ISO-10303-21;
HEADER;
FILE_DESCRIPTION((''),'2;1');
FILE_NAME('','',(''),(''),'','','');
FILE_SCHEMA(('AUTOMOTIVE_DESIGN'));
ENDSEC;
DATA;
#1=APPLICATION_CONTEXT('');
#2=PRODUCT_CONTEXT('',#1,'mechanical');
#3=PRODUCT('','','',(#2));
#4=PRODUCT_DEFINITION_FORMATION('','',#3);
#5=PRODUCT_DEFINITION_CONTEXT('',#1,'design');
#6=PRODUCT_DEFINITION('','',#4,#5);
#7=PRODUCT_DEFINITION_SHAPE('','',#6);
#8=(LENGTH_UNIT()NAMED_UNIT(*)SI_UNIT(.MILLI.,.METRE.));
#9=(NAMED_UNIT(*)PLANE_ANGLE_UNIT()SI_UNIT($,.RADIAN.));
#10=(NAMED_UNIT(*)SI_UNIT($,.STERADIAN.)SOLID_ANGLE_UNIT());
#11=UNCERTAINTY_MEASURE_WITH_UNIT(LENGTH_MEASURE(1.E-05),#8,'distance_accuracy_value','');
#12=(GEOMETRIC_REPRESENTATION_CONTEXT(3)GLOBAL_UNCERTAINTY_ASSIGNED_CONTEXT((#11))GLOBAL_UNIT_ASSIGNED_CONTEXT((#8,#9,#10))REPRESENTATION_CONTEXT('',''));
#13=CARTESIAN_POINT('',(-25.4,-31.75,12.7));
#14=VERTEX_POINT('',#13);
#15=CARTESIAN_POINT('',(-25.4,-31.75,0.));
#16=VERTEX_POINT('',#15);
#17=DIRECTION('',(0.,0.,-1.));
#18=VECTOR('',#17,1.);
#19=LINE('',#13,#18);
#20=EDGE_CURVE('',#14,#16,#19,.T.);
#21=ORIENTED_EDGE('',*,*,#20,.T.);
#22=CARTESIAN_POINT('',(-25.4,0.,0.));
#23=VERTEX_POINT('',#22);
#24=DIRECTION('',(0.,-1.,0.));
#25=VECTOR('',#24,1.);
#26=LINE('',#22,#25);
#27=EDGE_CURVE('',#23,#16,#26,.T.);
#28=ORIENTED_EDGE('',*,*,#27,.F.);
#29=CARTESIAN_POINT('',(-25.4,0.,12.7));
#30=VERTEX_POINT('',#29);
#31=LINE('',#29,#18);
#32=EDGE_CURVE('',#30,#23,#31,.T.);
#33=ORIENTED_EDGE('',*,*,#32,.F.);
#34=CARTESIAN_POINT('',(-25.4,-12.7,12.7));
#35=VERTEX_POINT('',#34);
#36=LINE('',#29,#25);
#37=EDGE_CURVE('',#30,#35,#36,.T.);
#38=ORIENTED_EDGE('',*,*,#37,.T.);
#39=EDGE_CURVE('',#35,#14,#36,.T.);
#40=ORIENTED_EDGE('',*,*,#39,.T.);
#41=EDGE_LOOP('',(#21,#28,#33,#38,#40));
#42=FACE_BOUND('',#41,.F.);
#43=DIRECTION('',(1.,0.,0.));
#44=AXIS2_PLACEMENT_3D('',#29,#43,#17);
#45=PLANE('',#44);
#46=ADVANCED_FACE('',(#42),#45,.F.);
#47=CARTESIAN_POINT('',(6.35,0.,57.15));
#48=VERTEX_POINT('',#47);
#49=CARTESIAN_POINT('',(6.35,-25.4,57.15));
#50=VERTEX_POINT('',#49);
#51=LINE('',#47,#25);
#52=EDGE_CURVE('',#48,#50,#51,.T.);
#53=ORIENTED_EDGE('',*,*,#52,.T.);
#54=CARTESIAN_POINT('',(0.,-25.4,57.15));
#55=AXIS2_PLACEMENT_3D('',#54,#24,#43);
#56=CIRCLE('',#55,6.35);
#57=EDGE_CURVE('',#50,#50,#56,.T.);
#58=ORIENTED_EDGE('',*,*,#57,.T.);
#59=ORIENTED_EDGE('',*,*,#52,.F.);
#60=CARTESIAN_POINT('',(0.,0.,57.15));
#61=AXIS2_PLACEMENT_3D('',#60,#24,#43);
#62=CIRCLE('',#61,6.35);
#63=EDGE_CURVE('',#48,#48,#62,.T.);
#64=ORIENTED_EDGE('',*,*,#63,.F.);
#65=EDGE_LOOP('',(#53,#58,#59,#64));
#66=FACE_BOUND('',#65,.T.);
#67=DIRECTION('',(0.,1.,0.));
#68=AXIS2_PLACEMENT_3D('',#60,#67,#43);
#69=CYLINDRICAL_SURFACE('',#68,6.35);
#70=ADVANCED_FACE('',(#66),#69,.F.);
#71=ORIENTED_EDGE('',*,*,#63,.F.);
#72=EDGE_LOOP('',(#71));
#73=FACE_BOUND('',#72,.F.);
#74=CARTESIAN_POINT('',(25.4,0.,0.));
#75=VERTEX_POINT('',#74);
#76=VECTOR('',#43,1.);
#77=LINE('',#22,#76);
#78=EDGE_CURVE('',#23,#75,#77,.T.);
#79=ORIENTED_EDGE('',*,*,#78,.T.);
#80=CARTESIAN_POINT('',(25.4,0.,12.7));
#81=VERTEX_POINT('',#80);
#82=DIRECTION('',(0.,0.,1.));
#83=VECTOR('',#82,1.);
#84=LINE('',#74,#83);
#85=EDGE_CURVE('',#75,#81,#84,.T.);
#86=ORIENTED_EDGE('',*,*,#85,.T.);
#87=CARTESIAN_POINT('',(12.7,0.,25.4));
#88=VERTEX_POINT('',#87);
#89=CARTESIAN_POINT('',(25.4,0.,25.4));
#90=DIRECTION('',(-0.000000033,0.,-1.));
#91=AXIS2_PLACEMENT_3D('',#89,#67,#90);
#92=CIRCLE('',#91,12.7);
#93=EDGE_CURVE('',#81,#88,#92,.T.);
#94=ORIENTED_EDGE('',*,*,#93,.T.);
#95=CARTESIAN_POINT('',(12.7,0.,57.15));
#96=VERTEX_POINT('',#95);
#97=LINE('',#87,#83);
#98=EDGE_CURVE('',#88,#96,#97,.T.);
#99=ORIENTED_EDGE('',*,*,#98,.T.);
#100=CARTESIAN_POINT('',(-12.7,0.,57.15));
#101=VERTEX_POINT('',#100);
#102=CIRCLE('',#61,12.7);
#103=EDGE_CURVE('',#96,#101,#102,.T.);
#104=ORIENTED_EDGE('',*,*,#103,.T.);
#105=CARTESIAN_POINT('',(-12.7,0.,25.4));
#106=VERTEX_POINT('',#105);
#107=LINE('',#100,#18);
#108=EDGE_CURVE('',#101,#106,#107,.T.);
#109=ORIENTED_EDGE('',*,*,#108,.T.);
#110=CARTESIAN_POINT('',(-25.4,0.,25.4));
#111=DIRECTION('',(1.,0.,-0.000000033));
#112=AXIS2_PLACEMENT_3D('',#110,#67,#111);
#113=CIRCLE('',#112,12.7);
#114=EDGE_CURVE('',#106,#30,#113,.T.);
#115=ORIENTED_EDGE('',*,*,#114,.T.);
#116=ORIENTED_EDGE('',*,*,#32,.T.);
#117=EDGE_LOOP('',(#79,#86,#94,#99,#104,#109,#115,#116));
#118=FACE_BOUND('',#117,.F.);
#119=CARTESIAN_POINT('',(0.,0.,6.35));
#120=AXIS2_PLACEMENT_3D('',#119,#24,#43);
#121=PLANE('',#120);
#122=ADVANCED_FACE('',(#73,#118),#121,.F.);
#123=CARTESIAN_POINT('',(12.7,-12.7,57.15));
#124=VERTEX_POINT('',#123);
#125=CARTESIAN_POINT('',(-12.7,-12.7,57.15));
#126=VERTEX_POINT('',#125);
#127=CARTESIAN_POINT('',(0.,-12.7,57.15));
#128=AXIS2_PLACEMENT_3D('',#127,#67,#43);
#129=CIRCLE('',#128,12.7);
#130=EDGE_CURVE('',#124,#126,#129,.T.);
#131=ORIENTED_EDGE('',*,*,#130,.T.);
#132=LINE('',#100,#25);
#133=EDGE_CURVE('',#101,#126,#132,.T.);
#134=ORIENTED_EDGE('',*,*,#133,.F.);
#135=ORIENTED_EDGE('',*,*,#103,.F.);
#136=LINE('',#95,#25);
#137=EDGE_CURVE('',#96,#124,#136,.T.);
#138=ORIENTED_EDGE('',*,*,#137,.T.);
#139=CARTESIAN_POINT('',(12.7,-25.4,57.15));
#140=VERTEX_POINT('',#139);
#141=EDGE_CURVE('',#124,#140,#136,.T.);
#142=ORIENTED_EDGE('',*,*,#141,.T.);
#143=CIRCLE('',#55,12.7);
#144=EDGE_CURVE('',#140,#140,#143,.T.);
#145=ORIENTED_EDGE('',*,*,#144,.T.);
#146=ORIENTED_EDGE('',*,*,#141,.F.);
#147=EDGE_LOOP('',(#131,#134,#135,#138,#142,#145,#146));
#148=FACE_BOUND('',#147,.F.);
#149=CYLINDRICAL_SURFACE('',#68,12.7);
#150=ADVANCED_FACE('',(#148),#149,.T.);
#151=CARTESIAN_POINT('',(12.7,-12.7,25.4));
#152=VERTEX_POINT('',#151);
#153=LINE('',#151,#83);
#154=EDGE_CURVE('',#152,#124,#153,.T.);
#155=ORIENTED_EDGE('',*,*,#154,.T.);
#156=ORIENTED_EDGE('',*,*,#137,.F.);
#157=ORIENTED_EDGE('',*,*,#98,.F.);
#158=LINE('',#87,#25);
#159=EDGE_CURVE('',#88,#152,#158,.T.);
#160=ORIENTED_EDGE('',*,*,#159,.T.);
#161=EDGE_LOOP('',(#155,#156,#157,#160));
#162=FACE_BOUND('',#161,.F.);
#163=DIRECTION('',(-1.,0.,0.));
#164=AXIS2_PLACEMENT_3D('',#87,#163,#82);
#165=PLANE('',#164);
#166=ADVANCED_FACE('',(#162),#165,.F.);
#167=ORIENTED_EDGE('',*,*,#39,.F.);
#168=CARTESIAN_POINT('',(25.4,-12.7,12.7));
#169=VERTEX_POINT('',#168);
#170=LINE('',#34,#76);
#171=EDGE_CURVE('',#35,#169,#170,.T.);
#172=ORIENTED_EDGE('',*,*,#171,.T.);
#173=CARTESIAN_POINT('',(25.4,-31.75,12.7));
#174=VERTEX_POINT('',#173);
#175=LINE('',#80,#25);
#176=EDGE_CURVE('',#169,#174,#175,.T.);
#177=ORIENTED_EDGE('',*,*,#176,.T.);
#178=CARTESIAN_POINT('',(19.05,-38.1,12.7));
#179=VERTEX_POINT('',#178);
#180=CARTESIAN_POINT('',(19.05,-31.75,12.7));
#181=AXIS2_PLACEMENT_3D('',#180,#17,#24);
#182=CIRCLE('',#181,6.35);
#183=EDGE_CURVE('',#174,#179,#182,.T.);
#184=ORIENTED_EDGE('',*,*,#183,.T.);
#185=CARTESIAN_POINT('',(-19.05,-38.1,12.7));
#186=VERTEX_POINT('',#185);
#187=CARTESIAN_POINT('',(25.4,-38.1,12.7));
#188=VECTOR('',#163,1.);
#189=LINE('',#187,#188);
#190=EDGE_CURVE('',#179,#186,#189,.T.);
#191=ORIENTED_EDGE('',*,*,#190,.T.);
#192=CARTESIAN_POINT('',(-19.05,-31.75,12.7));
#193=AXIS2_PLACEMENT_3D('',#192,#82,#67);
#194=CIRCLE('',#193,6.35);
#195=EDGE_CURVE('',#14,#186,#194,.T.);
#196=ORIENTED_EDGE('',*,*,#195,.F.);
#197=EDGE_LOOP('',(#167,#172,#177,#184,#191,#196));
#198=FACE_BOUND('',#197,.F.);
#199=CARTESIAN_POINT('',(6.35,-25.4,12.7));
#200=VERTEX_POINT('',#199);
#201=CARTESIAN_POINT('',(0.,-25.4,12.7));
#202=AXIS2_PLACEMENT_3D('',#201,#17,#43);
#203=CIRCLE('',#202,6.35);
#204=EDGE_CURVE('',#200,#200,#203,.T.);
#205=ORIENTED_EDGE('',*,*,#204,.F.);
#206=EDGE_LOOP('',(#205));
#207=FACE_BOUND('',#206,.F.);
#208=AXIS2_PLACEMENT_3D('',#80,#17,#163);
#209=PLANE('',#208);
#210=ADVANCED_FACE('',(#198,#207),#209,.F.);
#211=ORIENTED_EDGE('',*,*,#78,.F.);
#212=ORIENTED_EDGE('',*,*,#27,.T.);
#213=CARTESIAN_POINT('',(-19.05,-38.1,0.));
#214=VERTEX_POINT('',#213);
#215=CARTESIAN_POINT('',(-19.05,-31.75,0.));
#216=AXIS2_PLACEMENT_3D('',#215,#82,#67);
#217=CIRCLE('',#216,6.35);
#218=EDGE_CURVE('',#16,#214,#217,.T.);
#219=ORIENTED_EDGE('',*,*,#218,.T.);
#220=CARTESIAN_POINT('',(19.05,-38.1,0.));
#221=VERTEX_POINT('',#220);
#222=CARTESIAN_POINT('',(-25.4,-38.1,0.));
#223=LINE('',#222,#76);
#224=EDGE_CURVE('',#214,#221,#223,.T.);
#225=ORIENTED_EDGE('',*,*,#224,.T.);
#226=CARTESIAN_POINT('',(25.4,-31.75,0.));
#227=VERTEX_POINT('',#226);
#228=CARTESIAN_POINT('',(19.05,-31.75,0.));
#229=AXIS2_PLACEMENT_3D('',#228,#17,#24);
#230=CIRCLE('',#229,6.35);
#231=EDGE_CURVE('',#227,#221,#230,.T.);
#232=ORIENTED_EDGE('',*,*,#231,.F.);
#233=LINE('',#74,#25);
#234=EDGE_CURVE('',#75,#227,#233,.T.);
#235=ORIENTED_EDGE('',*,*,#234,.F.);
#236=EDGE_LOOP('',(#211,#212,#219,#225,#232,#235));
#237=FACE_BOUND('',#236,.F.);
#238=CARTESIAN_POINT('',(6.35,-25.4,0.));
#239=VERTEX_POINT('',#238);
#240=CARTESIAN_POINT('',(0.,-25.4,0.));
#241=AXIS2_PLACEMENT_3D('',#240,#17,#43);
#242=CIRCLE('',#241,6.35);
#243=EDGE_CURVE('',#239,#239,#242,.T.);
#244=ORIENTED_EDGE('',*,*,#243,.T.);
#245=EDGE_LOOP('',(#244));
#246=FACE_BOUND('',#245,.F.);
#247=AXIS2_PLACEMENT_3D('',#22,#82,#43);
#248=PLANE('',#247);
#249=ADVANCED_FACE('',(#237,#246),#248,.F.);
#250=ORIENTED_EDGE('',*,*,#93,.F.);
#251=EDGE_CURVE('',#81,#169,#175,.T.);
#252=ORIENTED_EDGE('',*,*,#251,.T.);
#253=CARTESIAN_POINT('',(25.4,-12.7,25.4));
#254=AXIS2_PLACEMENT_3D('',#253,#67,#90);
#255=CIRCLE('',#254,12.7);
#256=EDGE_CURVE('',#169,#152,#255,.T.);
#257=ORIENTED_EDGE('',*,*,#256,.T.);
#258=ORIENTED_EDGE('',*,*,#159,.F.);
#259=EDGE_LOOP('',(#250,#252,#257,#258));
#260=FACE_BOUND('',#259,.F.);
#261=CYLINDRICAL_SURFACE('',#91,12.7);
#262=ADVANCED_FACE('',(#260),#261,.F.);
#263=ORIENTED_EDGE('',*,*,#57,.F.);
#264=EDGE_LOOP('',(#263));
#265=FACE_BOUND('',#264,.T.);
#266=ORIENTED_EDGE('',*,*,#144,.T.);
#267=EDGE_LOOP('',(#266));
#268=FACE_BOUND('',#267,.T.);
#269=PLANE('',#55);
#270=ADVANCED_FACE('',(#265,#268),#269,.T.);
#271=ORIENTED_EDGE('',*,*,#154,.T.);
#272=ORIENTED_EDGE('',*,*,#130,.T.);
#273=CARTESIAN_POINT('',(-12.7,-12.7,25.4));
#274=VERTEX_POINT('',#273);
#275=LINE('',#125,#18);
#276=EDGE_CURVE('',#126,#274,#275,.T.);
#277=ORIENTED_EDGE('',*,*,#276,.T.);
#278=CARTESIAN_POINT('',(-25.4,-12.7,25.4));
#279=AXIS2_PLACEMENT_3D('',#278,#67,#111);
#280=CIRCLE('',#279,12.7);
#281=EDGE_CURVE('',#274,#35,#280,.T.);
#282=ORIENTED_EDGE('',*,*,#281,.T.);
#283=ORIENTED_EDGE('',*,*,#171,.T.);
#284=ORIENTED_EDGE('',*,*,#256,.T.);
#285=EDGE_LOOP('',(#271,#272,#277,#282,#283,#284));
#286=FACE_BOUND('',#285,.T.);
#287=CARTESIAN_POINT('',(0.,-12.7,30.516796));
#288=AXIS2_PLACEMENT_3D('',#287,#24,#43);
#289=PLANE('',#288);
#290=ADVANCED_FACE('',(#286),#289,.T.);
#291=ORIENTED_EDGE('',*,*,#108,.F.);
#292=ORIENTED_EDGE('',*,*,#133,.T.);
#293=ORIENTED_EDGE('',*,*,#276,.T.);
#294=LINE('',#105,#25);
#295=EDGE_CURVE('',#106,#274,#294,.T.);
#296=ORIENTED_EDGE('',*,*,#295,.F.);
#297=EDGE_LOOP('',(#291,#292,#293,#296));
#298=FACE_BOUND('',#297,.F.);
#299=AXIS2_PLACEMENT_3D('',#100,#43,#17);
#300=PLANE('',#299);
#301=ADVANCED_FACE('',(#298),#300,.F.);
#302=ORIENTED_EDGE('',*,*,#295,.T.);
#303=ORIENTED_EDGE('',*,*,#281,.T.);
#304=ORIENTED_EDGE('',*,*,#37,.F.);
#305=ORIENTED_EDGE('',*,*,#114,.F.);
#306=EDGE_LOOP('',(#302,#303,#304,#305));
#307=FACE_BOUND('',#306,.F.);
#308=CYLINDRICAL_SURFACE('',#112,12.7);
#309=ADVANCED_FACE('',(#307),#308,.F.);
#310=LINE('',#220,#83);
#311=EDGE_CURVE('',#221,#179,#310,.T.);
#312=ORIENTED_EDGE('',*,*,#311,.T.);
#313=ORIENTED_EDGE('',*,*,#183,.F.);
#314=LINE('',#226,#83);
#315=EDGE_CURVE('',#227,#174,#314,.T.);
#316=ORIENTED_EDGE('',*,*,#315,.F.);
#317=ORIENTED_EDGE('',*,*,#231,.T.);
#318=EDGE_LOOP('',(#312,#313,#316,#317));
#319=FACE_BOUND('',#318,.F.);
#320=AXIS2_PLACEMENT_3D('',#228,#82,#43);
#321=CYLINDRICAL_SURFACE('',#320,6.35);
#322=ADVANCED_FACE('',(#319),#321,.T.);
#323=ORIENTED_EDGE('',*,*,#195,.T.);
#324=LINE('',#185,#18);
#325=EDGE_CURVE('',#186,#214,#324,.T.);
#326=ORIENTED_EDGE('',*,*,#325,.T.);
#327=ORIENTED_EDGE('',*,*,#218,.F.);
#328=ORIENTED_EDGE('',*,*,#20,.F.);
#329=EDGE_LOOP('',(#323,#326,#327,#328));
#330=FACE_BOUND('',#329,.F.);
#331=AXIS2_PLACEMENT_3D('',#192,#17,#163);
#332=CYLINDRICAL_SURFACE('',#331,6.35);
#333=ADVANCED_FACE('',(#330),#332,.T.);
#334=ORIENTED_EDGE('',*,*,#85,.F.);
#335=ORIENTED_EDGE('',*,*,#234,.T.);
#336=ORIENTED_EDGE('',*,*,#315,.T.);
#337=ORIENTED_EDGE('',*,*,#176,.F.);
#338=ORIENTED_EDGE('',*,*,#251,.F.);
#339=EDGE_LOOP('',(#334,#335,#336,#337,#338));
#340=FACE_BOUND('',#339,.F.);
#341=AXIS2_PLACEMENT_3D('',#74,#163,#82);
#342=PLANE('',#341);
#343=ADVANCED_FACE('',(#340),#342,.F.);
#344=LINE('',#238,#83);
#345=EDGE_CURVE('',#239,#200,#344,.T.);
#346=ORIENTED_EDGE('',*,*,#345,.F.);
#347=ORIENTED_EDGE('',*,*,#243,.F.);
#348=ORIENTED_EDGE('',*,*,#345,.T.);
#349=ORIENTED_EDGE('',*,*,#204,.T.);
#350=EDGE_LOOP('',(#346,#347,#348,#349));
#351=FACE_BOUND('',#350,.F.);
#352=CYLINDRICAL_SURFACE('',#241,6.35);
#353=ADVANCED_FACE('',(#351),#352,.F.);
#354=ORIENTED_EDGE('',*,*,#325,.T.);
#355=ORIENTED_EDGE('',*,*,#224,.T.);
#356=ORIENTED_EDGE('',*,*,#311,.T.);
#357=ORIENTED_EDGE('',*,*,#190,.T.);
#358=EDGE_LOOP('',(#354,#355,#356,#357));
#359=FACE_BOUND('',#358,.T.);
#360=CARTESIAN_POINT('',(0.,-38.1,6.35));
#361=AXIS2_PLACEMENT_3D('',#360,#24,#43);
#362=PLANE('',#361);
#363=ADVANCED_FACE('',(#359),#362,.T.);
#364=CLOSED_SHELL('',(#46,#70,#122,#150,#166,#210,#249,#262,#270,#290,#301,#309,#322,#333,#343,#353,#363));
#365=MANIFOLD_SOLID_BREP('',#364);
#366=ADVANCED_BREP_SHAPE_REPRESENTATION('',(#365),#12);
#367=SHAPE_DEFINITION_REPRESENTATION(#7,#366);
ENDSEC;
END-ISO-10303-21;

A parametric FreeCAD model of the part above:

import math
import FreeCAD as App
import Part
import Sketcher

V = App.Vector
Q = App.Units.Quantity


def edges_at(feature, points):
    """Names of the edges that pass closest to the given points."""
    edges = feature.Shape.Edges
    near = lambda p: min(range(len(edges)), key=lambda i: edges[i].distToShape(Part.Vertex(*p))[0])
    return sorted({f"Edge{near(p) + 1}" for p in points})


def add_polygon(sketch, points):
    """Adds a closed chain of lines whose ends are joined by coincident constraints."""
    first, n = sketch.GeometryCount, len(points)
    for a, b in zip(points, points[1:] + points[:1]):
        sketch.addGeometry(Part.LineSegment(App.Vector(*a, 0), App.Vector(*b, 0)), False)
    for i in range(n):
        sketch.addConstraint(Sketcher.Constraint("Coincident", first + i, 2, first + (i + 1) % n, 1))

doc = App.newDocument("Part")
params = doc.addObject("Spreadsheet::Sheet", "Params")
for row, (alias, value) in enumerate([
    ("sketch1_radius", "0.5 in"),
    ("sketch1_height", "1.25 in"),
    ("pad1_length", "0.5 in"),
    ("sketch2_diameter", "1 in"),
    ("sketch2_diameter2", "0.5 in"),
    ("pad2_length", "1 in"),
    ("sketch3_width", "2 in"),
    ("sketch3_height", "0.5 in"),
    ("pad3_length", "1.5 in"),
    ("fillet_radius", "0.25 in"),
    ("sketch4_diameter", "0.5 in"),
    ("pocket1_length", "1 in"),
], start=1):
    params.set(f"A{row}", alias)
    params.set(f"B{row}", "=" + value)
    params.setAlias(f"B{row}", alias)

body = doc.addObject("PartDesign::Body", "Body")

sketch1 = body.newObject("Sketcher::SketchObject", "Sketch")
sketch1.AttachmentSupport = (doc.getObject("XZ_Plane"), [""])
sketch1.MapMode = "FlatFace"
sketch1.addGeometry(Part.LineSegment(V(-25, 13, 0), V(25, 13, 0)), False)
sketch1.addGeometry(Part.ArcOfCircle(Part.Circle(V(25, 25, 0), V(0, 0, 1), 13), math.radians(-180), math.radians(-90)), False)
sketch1.addGeometry(Part.LineSegment(V(13, 25, 0), V(13, 57, 0)), False)
sketch1.addGeometry(Part.ArcOfCircle(Part.Circle(V(0, 57, 0), V(0, 0, 1), 13), math.radians(180), math.radians(360)), False)
sketch1.addGeometry(Part.LineSegment(V(-13, 57, 0), V(-13, 25, 0)), False)
sketch1.addGeometry(Part.ArcOfCircle(Part.Circle(V(-25, 25, 0), V(0, 0, 1), 13), math.radians(-90), math.radians(0)), False)
sketch1.addConstraint(Sketcher.Constraint("Tangent", 0, 2, 1, 2))
sketch1.addConstraint(Sketcher.Constraint("Tangent", 1, 1, 2, 1))
sketch1.addConstraint(Sketcher.Constraint("Tangent", 2, 2, 3, 2))
sketch1.addConstraint(Sketcher.Constraint("Tangent", 3, 1, 4, 1))
sketch1.addConstraint(Sketcher.Constraint("Tangent", 4, 2, 5, 2))
sketch1.addConstraint(Sketcher.Constraint("Tangent", 5, 1, 0, 1))
sketch1.addConstraint(Sketcher.Constraint("Horizontal", 0))
sketch1.addConstraint(Sketcher.Constraint("Vertical", 2))
sketch1.addConstraint(Sketcher.Constraint("Vertical", 4))
sketch1.addConstraint(Sketcher.Constraint("Equal", 1, 3))
sketch1.addConstraint(Sketcher.Constraint("Equal", 3, 5))
sketch1.addConstraint(Sketcher.Constraint("PointOnObject", 3, 3, -2))
sketch1.addConstraint(Sketcher.Constraint("Radius", 1, Q("0.5 in")))
sketch1.addConstraint(Sketcher.Constraint("DistanceY", -1, 1, 1, 3, Q("1 in")))
sketch1.addConstraint(Sketcher.Constraint("DistanceY", 2, 1, 2, 2, Q("1.25 in")))
sketch1.setExpression("Constraints[12]", "Params.sketch1_radius")
sketch1.setExpression("Constraints[14]", "Params.sketch1_height")
pad1 = body.newObject("PartDesign::Pad", "Pad")
pad1.Profile = sketch1
pad1.setExpression("Length", "Params.pad1_length")

sketch2 = body.newObject("Sketcher::SketchObject", "Sketch001")
sketch2.AttachmentSupport = (doc.getObject("XZ_Plane"), [""])
sketch2.MapMode = "FlatFace"
sketch2.addGeometry(Part.Circle(V(0, 57, 0), V(0, 0, 1), 13), False)
sketch2.addGeometry(Part.Circle(V(0, 57, 0), V(0, 0, 1), 6), False)
sketch2.addConstraint(Sketcher.Constraint("Coincident", 1, 3, 0, 3))
sketch2.addConstraint(Sketcher.Constraint("PointOnObject", 0, 3, -2))
sketch2.addConstraint(Sketcher.Constraint("Diameter", 0, Q("1 in")))
sketch2.addConstraint(Sketcher.Constraint("Diameter", 1, Q("0.5 in")))
sketch2.addConstraint(Sketcher.Constraint("DistanceY", -1, 1, 0, 3, Q("2.25 in")))
sketch2.setExpression("Constraints[2]", "Params.sketch2_diameter")
sketch2.setExpression("Constraints[3]", "Params.sketch2_diameter2")
pad2 = body.newObject("PartDesign::Pad", "Pad001")
pad2.Profile = sketch2
pad2.setExpression("Length", "Params.pad2_length")

sketch3 = body.newObject("Sketcher::SketchObject", "Sketch002")
sketch3.AttachmentSupport = (doc.getObject("XZ_Plane"), [""])
sketch3.MapMode = "FlatFace"
add_polygon(sketch3, [(-25, 0), (25, 0), (25, 13), (-25, 13)])
sketch3.addConstraint(Sketcher.Constraint("Horizontal", 0))
sketch3.addConstraint(Sketcher.Constraint("Vertical", 1))
sketch3.addConstraint(Sketcher.Constraint("Horizontal", 2))
sketch3.addConstraint(Sketcher.Constraint("Vertical", 3))
sketch3.addConstraint(Sketcher.Constraint("Symmetric", 0, 2, 3, 2, -1, 1))
sketch3.addConstraint(Sketcher.Constraint("DistanceX", 0, 1, 0, 2, Q("2 in")))
sketch3.addConstraint(Sketcher.Constraint("DistanceY", 1, 1, 1, 2, Q("0.5 in")))
sketch3.setExpression("Constraints[9]", "Params.sketch3_width")
sketch3.setExpression("Constraints[10]", "Params.sketch3_height")
pad3 = body.newObject("PartDesign::Pad", "Pad002")
pad3.Profile = sketch3
pad3.setExpression("Length", "Params.pad3_length")
doc.recompute()

fillet = body.newObject("PartDesign::Fillet", "Fillet")
fillet.Base = (pad3, edges_at(pad3, [(-25.4, -38.1, 6.35), (25.4, -38.1, 6.35)]))
fillet.setExpression("Radius", "Params.fillet_radius")

sketch4 = body.newObject("Sketcher::SketchObject", "Sketch003")
sketch4.AttachmentSupport = (doc.getObject("XY_Plane"), [""])
sketch4.MapMode = "FlatFace"
sketch4.addGeometry(Part.Circle(V(0, -25, 0), V(0, 0, 1), 6), False)
sketch4.addConstraint(Sketcher.Constraint("PointOnObject", 0, 3, -2))
sketch4.addConstraint(Sketcher.Constraint("Diameter", 0, Q("0.5 in")))
sketch4.addConstraint(Sketcher.Constraint("DistanceY", 0, 3, -1, 1, Q("1 in")))
sketch4.setExpression("Constraints[1]", "Params.sketch4_diameter")
pocket1 = body.newObject("PartDesign::Pocket", "Pocket")
pocket1.Profile = sketch4
pocket1.setExpression("Length", "Params.pocket1_length")
pocket1.Reversed = True

doc.recompute()
